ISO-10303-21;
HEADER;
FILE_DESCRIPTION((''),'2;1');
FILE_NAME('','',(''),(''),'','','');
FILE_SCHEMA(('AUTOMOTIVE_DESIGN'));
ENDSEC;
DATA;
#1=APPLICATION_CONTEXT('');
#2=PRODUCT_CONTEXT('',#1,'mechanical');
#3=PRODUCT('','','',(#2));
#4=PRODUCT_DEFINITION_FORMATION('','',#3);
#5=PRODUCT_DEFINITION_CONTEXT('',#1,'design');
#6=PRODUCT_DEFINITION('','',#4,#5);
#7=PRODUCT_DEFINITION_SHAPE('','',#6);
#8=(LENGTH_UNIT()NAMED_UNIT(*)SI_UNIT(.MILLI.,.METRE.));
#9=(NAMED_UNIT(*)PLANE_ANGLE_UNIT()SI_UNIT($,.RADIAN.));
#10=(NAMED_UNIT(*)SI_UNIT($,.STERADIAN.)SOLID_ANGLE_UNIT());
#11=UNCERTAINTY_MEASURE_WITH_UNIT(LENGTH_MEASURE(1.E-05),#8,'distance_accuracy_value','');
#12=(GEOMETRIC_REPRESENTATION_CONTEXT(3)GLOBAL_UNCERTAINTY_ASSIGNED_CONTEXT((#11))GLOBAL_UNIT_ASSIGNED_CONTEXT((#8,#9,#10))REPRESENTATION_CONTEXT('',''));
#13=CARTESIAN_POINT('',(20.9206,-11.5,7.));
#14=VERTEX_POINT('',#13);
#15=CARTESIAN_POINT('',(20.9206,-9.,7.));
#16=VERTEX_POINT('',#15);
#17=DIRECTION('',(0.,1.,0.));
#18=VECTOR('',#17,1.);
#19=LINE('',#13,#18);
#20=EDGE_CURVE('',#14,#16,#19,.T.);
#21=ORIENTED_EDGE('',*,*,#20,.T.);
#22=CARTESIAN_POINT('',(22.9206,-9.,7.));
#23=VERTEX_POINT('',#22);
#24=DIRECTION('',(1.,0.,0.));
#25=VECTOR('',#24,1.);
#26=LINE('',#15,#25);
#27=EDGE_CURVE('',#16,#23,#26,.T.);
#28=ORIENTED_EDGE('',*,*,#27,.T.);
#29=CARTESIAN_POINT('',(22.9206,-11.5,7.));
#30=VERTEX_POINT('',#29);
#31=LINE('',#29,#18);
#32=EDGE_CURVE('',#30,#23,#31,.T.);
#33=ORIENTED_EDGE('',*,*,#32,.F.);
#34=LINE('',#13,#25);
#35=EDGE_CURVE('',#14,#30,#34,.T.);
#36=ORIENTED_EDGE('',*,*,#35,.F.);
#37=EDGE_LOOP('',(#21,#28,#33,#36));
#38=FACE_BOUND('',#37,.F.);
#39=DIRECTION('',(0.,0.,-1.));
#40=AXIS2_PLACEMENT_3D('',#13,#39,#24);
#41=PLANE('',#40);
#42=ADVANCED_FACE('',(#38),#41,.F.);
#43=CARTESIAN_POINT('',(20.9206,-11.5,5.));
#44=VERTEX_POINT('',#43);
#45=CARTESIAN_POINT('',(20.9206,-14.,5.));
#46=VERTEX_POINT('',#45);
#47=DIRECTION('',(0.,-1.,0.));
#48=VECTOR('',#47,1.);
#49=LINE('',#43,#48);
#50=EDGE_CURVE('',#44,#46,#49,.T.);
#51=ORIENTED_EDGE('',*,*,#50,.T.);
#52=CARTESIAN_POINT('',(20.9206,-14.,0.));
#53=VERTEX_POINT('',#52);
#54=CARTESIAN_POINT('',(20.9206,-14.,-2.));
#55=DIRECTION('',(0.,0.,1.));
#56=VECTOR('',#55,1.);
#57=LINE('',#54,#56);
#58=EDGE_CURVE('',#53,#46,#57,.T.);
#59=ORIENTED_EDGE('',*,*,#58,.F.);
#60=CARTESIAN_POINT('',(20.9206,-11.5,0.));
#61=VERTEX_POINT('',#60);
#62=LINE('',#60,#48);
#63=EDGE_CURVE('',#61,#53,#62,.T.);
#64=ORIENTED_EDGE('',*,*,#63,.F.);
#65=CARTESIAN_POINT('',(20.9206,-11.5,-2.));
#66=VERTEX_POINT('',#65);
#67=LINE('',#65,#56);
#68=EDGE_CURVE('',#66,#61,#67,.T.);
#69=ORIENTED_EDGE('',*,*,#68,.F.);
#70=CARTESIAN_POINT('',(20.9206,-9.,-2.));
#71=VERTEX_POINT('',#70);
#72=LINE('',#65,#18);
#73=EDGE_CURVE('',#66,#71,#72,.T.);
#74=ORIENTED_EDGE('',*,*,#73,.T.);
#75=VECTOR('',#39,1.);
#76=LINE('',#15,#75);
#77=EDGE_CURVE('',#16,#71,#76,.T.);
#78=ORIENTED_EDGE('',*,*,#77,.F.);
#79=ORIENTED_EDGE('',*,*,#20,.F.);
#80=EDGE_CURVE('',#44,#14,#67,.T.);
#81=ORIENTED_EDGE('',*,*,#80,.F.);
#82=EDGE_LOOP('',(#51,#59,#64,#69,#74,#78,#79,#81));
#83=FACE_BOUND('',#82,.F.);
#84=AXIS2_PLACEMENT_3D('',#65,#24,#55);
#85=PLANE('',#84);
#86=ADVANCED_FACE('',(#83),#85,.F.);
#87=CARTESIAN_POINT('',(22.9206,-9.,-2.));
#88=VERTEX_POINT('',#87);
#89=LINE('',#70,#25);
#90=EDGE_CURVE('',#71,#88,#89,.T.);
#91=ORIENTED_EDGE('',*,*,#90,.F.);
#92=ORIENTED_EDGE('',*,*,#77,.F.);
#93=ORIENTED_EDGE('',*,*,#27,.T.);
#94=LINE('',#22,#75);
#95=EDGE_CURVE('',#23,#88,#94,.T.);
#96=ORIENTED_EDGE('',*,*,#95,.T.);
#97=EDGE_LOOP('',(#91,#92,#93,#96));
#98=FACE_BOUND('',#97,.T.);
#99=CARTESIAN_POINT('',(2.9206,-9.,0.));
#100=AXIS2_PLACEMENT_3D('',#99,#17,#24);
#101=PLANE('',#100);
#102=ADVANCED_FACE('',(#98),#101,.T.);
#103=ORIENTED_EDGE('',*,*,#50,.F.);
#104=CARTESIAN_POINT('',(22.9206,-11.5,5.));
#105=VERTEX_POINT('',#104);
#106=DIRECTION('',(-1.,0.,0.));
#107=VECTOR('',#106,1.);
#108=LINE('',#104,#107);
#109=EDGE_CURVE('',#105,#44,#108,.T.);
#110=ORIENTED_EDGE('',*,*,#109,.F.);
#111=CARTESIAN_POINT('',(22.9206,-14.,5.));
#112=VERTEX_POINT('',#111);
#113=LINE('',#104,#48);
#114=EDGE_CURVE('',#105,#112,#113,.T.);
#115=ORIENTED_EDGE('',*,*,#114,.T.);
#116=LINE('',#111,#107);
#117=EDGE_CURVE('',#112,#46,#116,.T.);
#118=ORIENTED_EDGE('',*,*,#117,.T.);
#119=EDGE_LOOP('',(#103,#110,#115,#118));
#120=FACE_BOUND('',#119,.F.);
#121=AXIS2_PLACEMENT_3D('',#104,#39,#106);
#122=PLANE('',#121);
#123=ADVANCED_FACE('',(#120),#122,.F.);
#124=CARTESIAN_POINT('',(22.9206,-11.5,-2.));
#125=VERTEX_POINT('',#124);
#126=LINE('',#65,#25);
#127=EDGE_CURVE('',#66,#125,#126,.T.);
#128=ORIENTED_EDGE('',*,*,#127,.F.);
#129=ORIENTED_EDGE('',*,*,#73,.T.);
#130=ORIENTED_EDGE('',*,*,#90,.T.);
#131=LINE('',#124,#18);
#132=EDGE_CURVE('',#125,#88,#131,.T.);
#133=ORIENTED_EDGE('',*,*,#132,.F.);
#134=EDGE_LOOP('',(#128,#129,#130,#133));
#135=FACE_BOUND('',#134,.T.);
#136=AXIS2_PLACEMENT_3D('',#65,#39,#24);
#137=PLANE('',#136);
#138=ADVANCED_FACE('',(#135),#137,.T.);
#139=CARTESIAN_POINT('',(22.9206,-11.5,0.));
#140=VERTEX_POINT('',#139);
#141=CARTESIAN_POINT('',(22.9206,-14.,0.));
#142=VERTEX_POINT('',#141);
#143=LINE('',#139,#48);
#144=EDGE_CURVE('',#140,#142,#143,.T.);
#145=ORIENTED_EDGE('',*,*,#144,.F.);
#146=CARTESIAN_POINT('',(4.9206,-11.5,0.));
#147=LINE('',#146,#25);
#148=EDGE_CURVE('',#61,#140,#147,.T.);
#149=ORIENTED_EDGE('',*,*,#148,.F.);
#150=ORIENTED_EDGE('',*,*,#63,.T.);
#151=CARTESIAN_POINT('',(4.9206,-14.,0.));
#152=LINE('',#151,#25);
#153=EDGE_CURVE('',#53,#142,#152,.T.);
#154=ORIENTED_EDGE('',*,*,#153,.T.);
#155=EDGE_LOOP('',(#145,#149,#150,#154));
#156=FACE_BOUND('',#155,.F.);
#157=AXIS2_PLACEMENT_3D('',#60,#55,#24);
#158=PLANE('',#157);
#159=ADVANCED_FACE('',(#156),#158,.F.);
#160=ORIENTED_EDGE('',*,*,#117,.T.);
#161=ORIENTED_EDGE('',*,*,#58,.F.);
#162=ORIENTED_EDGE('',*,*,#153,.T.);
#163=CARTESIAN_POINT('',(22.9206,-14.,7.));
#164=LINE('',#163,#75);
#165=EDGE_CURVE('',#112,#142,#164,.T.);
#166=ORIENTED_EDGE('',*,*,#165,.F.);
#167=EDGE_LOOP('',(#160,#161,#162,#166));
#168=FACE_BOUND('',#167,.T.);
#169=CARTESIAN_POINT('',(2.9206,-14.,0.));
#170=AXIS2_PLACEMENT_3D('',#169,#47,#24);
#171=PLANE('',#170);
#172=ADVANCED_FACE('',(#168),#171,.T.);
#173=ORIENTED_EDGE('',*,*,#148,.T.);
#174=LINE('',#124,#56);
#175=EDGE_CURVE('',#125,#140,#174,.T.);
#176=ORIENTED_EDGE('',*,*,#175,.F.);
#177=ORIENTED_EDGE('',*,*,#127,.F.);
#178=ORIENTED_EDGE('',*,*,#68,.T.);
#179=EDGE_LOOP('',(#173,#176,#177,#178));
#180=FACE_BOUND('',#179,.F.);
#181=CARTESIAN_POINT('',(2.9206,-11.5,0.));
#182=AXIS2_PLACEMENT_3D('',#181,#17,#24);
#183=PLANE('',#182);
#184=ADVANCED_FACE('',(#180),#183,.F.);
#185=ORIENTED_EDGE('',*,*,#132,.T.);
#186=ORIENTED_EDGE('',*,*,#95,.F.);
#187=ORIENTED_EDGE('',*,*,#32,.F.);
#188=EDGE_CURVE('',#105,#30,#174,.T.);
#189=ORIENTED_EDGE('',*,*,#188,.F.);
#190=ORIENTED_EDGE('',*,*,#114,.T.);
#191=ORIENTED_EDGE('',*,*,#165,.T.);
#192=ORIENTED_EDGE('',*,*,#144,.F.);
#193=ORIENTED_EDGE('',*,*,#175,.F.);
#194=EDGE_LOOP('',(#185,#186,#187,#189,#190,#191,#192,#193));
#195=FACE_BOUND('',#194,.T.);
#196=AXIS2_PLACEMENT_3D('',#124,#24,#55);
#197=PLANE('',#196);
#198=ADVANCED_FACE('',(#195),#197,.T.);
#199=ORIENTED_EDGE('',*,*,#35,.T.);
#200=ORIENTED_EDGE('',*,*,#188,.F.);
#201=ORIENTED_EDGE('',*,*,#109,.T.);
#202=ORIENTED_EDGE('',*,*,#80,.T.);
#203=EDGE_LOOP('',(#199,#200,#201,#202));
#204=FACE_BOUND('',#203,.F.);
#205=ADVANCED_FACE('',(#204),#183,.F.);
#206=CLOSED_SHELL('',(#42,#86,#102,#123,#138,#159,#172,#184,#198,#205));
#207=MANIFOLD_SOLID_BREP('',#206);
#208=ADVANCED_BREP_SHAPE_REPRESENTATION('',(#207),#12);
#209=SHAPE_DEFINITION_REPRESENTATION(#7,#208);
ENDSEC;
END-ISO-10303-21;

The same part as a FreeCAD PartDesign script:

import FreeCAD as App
import Part
import Sketcher
from FreeCAD import Vector
Q = App.Units.Quantity


def add_polygon(sketch, points):
    """Adds a closed chain of lines whose ends are joined by coincident constraints."""
    first, n = sketch.GeometryCount, len(points)
    for a, b in zip(points, points[1:] + points[:1]):
        sketch.addGeometry(Part.LineSegment(App.Vector(*a, 0), App.Vector(*b, 0)), False)
    for i in range(n):
        sketch.addConstraint(Sketcher.Constraint("Coincident", first + i, 2, first + (i + 1) % n, 1))

doc = App.newDocument("Part")
body = doc.addObject("PartDesign::Body", "Body")

# Sketch on XZ plane
sketch1 = doc.addObject("Sketcher::SketchObject", "Sketch")
body.addObject(sketch1)
sketch1.AttachmentSupport = (doc.XZ_Plane, [""])
sketch1.MapMode = "FlatFace"
sketch1.AttachmentOffset = App.Placement(Vector(0, 0, 11.5), App.Rotation())
add_polygon(sketch1, [(20.9, -2), (20.9, 7), (22.9, 7), (22.9, -2)])  # lines 0-3
sketch1.addConstraint(Sketcher.Constraint("Vertical", 0))
sketch1.addConstraint(Sketcher.Constraint("Horizontal", 1))
sketch1.addConstraint(Sketcher.Constraint("Vertical", 2))
sketch1.addConstraint(Sketcher.Constraint("Horizontal", 3))
sketch1.addConstraint(Sketcher.Constraint("DistanceX", 1, 1, 1, 2, Q("2 mm")))
sketch1.addConstraint(Sketcher.Constraint("DistanceY", 2, 2, -1, 1, Q("2 mm")))
sketch1.addConstraint(Sketcher.Constraint("DistanceY", 0, 1, 0, 2, Q("9 mm")))
sketch1.addConstraint(Sketcher.Constraint("DistanceX", -1, 1, 0, 2, Q("20.9206 mm")))
pad1 = doc.addObject("PartDesign::Pad", "Pad")
body.addObject(pad1)
pad1.Profile = sketch1
pad1.Length = 2.5
pad1.Reversed = True

# Sketch on XZ plane
sketch2 = doc.addObject("Sketcher::SketchObject", "Sketch001")
body.addObject(sketch2)
sketch2.AttachmentSupport = (doc.XZ_Plane, [""])
sketch2.MapMode = "FlatFace"
sketch2.AttachmentOffset = App.Placement(Vector(0, 0, 11.5), App.Rotation())
add_polygon(sketch2, [(22.9, 0), (22.9, 5), (20.9, 5), (20.9, 0)])  # lines 0-3
sketch2.addConstraint(Sketcher.Constraint("Vertical", 0))
sketch2.addConstraint(Sketcher.Constraint("Horizontal", 1))
sketch2.addConstraint(Sketcher.Constraint("Vertical", 2))
sketch2.addConstraint(Sketcher.Constraint("Horizontal", 3))
sketch2.addConstraint(Sketcher.Constraint("PointOnObject", 2, 2, -1))
sketch2.addConstraint(Sketcher.Constraint("DistanceY", 0, 1, 0, 2, Q("5 mm")))
sketch2.addConstraint(Sketcher.Constraint("DistanceX", 1, 2, 1, 1, Q("2 mm")))
sketch2.addConstraint(Sketcher.Constraint("DistanceX", -1, 1, 0, 2, Q("22.9206 mm")))
pad2 = doc.addObject("PartDesign::Pad", "Pad001")
body.addObject(pad2)
pad2.Profile = sketch2
pad2.Length = 2.5

doc.recompute()
